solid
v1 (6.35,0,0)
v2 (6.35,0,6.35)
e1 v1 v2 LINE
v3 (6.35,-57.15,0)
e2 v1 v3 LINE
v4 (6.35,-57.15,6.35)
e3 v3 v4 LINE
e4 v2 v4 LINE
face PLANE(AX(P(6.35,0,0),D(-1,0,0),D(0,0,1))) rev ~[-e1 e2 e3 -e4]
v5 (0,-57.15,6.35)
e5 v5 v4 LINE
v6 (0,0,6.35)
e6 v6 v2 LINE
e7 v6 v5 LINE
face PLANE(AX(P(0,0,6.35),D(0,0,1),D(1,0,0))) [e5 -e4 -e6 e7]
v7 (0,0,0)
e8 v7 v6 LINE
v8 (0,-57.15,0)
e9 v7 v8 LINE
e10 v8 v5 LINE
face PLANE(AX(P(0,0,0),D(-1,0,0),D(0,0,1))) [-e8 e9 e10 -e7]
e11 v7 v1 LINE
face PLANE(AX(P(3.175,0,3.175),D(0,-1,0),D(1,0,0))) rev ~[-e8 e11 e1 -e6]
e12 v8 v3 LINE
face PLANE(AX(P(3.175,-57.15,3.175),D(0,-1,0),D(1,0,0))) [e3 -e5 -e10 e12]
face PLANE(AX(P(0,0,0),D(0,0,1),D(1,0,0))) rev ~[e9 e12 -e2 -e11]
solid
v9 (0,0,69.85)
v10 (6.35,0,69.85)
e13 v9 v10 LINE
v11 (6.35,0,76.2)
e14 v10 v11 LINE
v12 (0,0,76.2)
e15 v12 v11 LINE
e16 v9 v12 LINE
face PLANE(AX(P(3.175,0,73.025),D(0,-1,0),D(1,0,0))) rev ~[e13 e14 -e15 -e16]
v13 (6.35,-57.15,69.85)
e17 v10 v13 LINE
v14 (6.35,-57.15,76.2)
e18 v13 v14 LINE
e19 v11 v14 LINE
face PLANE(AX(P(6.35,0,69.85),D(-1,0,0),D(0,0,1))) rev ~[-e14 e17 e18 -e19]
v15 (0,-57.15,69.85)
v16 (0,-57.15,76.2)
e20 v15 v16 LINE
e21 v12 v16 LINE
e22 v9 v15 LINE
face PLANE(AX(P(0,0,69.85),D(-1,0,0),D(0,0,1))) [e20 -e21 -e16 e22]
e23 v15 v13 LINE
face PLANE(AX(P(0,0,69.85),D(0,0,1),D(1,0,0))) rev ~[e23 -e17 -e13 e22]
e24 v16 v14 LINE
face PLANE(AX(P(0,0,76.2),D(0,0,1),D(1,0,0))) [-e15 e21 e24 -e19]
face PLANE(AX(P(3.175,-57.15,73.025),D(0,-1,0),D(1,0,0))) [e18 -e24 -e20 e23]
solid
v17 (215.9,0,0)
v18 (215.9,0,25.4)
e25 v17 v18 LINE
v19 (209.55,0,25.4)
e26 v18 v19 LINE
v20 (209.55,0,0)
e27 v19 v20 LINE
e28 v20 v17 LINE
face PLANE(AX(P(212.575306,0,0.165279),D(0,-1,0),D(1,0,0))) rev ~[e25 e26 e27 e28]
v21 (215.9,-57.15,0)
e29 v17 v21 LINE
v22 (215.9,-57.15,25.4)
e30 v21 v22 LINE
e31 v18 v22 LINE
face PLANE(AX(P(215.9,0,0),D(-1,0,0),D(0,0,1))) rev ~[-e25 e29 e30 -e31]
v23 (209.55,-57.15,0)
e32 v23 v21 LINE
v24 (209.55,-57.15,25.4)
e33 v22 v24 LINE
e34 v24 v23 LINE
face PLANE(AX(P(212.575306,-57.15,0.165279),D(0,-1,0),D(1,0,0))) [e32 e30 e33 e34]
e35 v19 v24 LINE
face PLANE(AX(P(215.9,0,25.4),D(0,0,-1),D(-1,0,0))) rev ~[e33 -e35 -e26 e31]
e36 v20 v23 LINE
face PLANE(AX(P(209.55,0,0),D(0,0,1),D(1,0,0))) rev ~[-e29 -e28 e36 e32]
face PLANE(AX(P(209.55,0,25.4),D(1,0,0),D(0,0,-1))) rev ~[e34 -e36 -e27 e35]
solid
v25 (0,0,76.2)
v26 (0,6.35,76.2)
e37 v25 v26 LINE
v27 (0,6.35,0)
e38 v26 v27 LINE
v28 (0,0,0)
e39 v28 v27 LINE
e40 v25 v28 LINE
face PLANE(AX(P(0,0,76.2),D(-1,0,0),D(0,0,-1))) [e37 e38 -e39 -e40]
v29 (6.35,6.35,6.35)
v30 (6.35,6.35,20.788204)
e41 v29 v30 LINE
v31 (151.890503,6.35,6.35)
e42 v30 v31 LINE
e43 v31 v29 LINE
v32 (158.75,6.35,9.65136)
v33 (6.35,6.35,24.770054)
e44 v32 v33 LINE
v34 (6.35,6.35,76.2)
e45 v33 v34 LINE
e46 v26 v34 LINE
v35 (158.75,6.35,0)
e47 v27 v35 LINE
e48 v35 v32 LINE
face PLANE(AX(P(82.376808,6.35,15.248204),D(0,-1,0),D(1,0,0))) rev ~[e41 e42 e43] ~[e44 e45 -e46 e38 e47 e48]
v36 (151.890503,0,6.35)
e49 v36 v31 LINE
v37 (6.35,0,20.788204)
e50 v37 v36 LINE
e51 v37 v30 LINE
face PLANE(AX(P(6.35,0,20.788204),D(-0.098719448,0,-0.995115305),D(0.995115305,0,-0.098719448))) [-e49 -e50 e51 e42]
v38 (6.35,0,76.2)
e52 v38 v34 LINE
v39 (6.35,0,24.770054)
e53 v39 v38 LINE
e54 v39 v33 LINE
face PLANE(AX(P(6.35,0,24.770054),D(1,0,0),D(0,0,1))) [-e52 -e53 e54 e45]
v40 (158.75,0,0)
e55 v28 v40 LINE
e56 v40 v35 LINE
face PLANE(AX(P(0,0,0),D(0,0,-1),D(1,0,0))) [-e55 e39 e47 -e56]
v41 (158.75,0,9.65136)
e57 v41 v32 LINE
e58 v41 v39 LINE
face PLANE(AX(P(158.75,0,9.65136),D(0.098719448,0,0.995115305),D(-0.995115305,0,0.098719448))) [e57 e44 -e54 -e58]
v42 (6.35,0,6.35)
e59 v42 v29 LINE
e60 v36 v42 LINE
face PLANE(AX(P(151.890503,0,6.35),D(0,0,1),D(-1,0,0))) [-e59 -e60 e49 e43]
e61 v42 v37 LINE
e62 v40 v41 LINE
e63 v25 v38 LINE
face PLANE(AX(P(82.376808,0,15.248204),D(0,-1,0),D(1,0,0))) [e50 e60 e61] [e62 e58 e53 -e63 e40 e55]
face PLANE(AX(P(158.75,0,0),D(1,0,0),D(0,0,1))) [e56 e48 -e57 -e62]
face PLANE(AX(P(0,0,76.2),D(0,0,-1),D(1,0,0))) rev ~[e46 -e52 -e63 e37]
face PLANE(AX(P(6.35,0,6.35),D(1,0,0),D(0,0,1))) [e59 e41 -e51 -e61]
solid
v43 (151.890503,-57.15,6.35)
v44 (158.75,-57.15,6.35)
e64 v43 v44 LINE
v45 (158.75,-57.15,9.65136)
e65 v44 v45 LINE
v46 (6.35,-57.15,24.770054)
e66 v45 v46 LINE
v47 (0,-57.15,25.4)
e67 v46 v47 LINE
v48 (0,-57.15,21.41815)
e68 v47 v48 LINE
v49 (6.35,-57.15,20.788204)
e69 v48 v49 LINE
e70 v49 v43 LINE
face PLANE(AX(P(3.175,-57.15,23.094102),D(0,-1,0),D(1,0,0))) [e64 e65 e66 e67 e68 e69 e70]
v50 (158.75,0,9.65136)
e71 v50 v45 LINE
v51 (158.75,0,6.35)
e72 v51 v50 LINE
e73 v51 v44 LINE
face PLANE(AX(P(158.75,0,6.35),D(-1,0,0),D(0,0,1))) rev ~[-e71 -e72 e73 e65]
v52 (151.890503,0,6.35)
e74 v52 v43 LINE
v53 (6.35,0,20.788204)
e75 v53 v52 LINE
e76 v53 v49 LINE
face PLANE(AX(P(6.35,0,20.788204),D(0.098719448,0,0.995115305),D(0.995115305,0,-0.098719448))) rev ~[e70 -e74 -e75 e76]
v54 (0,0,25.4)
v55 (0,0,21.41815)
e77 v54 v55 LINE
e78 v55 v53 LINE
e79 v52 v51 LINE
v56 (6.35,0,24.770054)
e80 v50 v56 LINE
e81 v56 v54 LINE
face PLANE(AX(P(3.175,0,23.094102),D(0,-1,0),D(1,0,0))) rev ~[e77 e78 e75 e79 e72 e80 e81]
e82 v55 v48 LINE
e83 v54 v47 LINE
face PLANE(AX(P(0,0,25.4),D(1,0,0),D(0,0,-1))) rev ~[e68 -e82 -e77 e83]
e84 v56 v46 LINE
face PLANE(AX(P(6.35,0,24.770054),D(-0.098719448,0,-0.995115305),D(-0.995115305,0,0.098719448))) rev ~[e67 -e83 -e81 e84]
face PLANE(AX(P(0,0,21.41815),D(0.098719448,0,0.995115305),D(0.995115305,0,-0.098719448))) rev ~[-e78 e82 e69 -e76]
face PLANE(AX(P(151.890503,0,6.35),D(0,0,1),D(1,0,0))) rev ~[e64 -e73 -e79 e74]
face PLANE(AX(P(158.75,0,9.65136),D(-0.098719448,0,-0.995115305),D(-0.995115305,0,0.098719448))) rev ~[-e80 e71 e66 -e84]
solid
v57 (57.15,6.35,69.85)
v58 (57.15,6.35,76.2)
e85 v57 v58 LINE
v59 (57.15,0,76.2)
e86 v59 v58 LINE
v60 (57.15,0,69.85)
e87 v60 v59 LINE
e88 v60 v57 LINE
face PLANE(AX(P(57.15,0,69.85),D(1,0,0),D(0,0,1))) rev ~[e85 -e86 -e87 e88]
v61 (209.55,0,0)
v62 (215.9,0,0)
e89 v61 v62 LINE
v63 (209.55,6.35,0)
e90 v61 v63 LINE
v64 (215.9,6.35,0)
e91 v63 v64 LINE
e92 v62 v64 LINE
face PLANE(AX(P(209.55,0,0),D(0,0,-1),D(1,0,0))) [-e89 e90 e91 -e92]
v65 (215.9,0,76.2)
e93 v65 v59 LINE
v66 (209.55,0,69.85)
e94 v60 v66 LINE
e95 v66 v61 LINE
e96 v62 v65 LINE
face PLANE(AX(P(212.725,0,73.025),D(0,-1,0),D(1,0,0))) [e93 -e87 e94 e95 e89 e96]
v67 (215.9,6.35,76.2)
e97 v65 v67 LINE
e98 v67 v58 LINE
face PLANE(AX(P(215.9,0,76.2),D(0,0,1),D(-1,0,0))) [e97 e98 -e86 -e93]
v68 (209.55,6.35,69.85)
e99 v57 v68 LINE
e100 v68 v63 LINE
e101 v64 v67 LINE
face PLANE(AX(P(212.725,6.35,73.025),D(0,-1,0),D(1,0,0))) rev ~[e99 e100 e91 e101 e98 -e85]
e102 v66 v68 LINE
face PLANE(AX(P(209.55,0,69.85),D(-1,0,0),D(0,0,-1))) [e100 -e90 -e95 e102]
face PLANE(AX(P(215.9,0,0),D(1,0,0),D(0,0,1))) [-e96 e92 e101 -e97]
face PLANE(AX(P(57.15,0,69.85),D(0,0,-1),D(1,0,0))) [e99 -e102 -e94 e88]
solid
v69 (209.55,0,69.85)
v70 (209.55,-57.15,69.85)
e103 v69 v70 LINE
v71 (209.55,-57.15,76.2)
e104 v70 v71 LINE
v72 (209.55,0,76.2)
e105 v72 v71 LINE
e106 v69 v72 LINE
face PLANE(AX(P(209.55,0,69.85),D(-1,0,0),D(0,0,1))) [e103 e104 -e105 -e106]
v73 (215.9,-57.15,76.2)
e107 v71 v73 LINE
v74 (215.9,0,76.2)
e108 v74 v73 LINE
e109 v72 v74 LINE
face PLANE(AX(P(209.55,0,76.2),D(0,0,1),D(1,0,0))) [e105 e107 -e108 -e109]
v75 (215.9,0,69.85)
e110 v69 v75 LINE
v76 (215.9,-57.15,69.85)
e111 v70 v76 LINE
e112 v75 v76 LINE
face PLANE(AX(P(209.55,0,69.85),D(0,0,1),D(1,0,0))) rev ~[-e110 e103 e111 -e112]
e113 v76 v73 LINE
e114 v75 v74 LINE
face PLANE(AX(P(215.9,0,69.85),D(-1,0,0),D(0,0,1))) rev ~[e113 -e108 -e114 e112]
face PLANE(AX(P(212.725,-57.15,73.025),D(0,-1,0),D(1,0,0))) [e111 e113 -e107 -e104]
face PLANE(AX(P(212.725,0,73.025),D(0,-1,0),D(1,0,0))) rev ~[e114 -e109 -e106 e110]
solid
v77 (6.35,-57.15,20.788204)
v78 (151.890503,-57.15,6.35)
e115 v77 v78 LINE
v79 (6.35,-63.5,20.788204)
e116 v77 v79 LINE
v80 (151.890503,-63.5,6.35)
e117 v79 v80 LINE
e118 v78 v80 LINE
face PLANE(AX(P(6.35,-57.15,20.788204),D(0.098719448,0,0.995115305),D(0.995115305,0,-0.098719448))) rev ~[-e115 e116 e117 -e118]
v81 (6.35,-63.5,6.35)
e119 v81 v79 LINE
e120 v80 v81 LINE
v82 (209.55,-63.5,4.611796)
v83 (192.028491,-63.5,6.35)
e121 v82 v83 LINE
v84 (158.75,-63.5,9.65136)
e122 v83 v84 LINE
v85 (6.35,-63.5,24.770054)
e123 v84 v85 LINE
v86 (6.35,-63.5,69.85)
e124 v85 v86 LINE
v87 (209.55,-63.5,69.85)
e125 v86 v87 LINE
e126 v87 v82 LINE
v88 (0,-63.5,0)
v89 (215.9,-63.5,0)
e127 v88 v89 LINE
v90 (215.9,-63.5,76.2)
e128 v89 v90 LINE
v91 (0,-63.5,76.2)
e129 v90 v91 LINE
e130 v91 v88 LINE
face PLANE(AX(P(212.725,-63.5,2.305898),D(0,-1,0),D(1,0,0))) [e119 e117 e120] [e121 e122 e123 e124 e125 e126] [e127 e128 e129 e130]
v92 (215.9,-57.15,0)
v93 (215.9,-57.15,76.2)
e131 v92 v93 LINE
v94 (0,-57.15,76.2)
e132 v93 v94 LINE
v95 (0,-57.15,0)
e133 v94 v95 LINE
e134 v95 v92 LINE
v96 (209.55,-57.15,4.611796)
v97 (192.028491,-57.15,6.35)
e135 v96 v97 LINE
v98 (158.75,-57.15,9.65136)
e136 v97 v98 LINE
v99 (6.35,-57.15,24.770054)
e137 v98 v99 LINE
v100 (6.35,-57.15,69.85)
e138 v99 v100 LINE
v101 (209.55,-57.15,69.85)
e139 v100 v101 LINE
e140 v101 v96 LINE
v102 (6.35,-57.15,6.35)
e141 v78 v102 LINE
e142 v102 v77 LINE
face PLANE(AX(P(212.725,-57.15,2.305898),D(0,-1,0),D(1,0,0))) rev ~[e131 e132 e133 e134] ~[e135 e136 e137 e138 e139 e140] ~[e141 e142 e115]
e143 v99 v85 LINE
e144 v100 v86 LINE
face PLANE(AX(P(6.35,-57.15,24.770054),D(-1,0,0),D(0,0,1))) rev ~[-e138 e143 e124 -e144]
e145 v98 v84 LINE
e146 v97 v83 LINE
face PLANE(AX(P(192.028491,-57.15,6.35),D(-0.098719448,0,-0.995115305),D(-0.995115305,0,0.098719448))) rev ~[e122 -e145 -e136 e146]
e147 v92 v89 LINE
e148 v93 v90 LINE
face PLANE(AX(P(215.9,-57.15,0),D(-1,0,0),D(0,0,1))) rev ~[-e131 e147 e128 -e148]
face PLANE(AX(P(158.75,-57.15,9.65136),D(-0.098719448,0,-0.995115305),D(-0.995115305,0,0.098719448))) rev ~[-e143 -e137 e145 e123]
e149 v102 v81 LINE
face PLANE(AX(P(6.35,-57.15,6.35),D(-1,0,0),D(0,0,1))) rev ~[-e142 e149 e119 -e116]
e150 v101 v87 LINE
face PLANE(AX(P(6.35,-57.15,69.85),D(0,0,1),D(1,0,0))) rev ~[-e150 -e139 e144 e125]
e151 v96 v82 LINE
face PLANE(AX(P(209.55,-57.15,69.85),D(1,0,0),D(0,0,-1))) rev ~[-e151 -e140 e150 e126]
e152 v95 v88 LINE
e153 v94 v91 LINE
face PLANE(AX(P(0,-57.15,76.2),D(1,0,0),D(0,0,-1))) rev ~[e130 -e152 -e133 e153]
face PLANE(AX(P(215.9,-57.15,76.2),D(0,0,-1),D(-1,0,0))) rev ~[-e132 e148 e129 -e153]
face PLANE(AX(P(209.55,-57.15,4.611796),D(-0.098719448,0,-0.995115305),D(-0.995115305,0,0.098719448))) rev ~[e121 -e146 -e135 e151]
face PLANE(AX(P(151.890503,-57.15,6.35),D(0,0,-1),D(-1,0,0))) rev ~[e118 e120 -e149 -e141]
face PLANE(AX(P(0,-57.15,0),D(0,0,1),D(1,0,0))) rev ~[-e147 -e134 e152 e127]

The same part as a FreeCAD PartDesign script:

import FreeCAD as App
import Part
import Sketcher
Q = App.Units.Quantity


def add_polygon(sketch, points):
    """Adds a closed chain of lines whose ends are joined by coincident constraints."""
    first, n = sketch.GeometryCount, len(points)
    for a, b in zip(points, points[1:] + points[:1]):
        sketch.addGeometry(Part.LineSegment(App.Vector(*a, 0), App.Vector(*b, 0)), False)
    for i in range(n):
        sketch.addConstraint(Sketcher.Constraint("Coincident", first + i, 2, first + (i + 1) % n, 1))

doc = App.newDocument("Part")
body = doc.addObject("PartDesign::Body", "Body")

# Sketch on XZ plane
sketch1 = body.newObject("Sketcher::SketchObject", "Sketch")
sketch1.AttachmentSupport = (doc.getObject("XZ_Plane"), [""])
sketch1.MapMode = "FlatFace"
add_polygon(sketch1, [(159, 10), (6, 25), (6, 76), (0, 76), (0, 0), (159, 0)])  # lines 0-5
add_polygon(sketch1, [(6, 6), (6, 21), (152, 6)])  # lines 6-8
sketch1.addConstraint([
    Sketcher.Constraint("Vertical", 1),
    Sketcher.Constraint("Horizontal", 2),
    Sketcher.Constraint("Vertical", 3),
    Sketcher.Constraint("Horizontal", 4),
    Sketcher.Constraint("Vertical", 5),
    Sketcher.Constraint("Vertical", 6),
    Sketcher.Constraint("Horizontal", 8),
    Sketcher.Constraint("Coincident", 3, 2, -1, 1),
    Sketcher.Constraint("Parallel", 0, 7),
    Sketcher.Constraint("Vertical", 1, 2, 6, 2),
    Sketcher.Constraint("DistanceY", 3, 2, 3, 1, Q("3 in")),
    Sketcher.Constraint("DistanceX", 0, 2, 4, 2, Q("6 in")),
    Sketcher.Constraint("DistanceX", 2, 2, 2, 1, Q("0.25 in")),
    Sketcher.Constraint("DistanceY", -1, 1, 7, 2, Q("0.25 in")),
    Sketcher.Constraint("DistanceY", 5, 1, 5, 2, 9.65136),
    Sketcher.Constraint("Distance", 0, 153.148082),
    Sketcher.Constraint("DistanceX", 8, 2, 8, 1, 145.540503),
])
pad1 = body.newObject("PartDesign::Pad", "Pad")
pad1.Profile = sketch1
pad1.Length = Q("0.25 in")
pad1.Reversed = True
body2 = doc.addObject("PartDesign::Body", "Body001")

# Sketch on XZ plane
sketch2 = body2.newObject("Sketcher::SketchObject", "Sketch001")
sketch2.AttachmentSupport = (doc.getObject("XZ_Plane001"), [""])
sketch2.MapMode = "FlatFace"
add_polygon(sketch2, [(210, 70), (210, 0), (216, 0), (216, 76), (57, 76), (57, 70)])  # lines 0-5
sketch2.addConstraint([
    Sketcher.Constraint("Vertical", 0),
    Sketcher.Constraint("Horizontal", 1),
    Sketcher.Constraint("Vertical", 2),
    Sketcher.Constraint("Horizontal", 3),
    Sketcher.Constraint("Vertical", 4),
    Sketcher.Constraint("Horizontal", 5),
    Sketcher.Constraint("PointOnObject", 0, 2, -1),
    Sketcher.Constraint("Equal", 1, 4),
    Sketcher.Constraint("DistanceX", 5, 1, 5, 2, Q("6 in")),
    Sketcher.Constraint("DistanceY", 2, 1, 2, 2, Q("3 in")),
    Sketcher.Constraint("DistanceX", 1, 1, 1, 2, Q("0.25 in")),
    Sketcher.Constraint("DistanceX", -1, 1, 1, 2, Q("8.5 in")),
])
pad2 = body2.newObject("PartDesign::Pad", "Pad001")
pad2.Profile = sketch2
pad2.Length = Q("0.25 in")
pad2.Reversed = True
body3 = doc.addObject("PartDesign::Body", "Body002")

# Sketch on XZ plane
sketch3 = body3.newObject("Sketcher::SketchObject", "Sketch002")
sketch3.AttachmentSupport = (doc.getObject("XZ_Plane002"), [""])
sketch3.MapMode = "FlatFace"
sketch3.AttachmentOffset = App.Placement(App.Vector(0, 0, 2.25 * 25.4), App.Rotation())
add_polygon(sketch3, [(0, 76.2), (0, 0), (215.9, 0), (215.9, 76.2)])  # lines 0-3
add_polygon(sketch3, [(158.75, 9.65136), (6.35, 24.770054), (6.35, 69.85), (209.55, 69.85), (209.55, 4.611796), (192.028491, 6.35)])  # lines 4-9
add_polygon(sketch3, [(6.35, 6.35), (6.35, 20.788204), (151.890503, 6.35)])  # lines 10-12
sketch3.addConstraint([
    Sketcher.Constraint("Vertical", 0),
    Sketcher.Constraint("Horizontal", 1),
    Sketcher.Constraint("Vertical", 2),
    Sketcher.Constraint("Horizontal", 3),
    Sketcher.Constraint("Vertical", 5),
    Sketcher.Constraint("Horizontal", 6),
    Sketcher.Constraint("Vertical", 7),
    Sketcher.Constraint("Vertical", 10),
    Sketcher.Constraint("Horizontal", 12),
    Sketcher.Constraint("Coincident", 0, 2, -1, 1),
    Sketcher.Constraint("DistanceX", 6, 1, 6, 2, Q("8 in")),
    Sketcher.Constraint("DistanceY", 0, 2, 0, 1, Q("3 in")),
    Sketcher.Constraint("DistanceX", 1, 1, 1, 2, Q("8.5 in")),
    Sketcher.Constraint("DistanceX", 9, 2, 7, 2, Q("2 in")),
    Sketcher.Constraint("DistanceX", 10, 2, 9, 2, Q("6 in")),
    Sketcher.Constraint("DistanceY", 8, 2, 6, 2, Q("2.5 in")),
    Sketcher.Constraint("DistanceY", 11, 2, 6, 2, Q("2.5 in")),
    Sketcher.Constraint("DistanceX", -1, 1, 4, 2, Q("0.25 in")),
    Sketcher.Constraint("DistanceY", -1, 1, 5, 2, Q("2.75 in")),
    Sketcher.Constraint("Distance", 4, 153.148082),
    Sketcher.Constraint("DistanceX", 12, 2, 12, 1, 145.540503),
    Sketcher.Constraint("DistanceY", 5, 1, 5, 2, 45.079946),
    Sketcher.Constraint("DistanceY", 7, 2, 7, 1, 65.238204),
    Sketcher.Constraint("DistanceY", 10, 1, 10, 2, 14.438204),
    Sketcher.Constraint("DistanceX", -1, 1, 8, 2, 192.028491),
])
pad3 = body3.newObject("PartDesign::Pad", "Pad002")
pad3.Profile = sketch3
pad3.Length = Q("0.25 in")
body4 = doc.addObject("PartDesign::Body", "Body003")

# Sketch on XZ plane
sketch4 = body4.newObject("Sketcher::SketchObject", "Sketch003")
sketch4.AttachmentSupport = (doc.getObject("XZ_Plane003"), [""])
sketch4.MapMode = "FlatFace"
add_polygon(sketch4, [(210, 76), (210, 70), (216, 70), (216, 76)])  # lines 0-3
sketch4.addConstraint([
    Sketcher.Constraint("Vertical", 0),
    Sketcher.Constraint("Horizontal", 1),
    Sketcher.Constraint("Vertical", 2),
    Sketcher.Constraint("Horizontal", 3),
    Sketcher.Constraint("Equal", 3, 0),
    Sketcher.Constraint("DistanceY", -1, 1, 2, 2, Q("3 in")),
    Sketcher.Constraint("DistanceX", 1, 1, 1, 2, Q("0.25 in")),
    Sketcher.Constraint("DistanceX", -1, 1, 1, 2, Q("8.5 in")),
])
pad4 = body4.newObject("PartDesign::Pad", "Pad003")
pad4.Profile = sketch4
pad4.Length = Q("2.25 in")
body5 = doc.addObject("PartDesign::Body", "Body004")

# Sketch on XZ plane
sketch5 = body5.newObject("Sketcher::SketchObject", "Sketch004")
sketch5.AttachmentSupport = (doc.getObject("XZ_Plane004"), [""])
sketch5.MapMode = "FlatFace"
add_polygon(sketch5, [(210, 0), (216, 0), (216, 25), (210, 25)])  # lines 0-3
sketch5.addConstraint([
    Sketcher.Constraint("Horizontal", 0),
    Sketcher.Constraint("Vertical", 1),
    Sketcher.Constraint("Horizontal", 2),
    Sketcher.Constraint("Vertical", 3),
    Sketcher.Constraint("PointOnObject", 0, 2, -1),
    Sketcher.Constraint("DistanceY", 1, 1, 1, 2, Q("1 in")),
    Sketcher.Constraint("DistanceX", 0, 1, 0, 2, Q("0.25 in")),
    Sketcher.Constraint("DistanceX", -1, 1, 0, 2, Q("8.5 in")),
])
pad5 = body5.newObject("PartDesign::Pad", "Pad004")
pad5.Profile = sketch5
pad5.Length = Q("2.25 in")
body6 = doc.addObject("PartDesign::Body", "Body005")

# Sketch on XZ plane
sketch6 = body6.newObject("Sketcher::SketchObject", "Sketch005")
sketch6.AttachmentSupport = (doc.getObject("XZ_Plane005"), [""])
sketch6.MapMode = "FlatFace"
add_polygon(sketch6, [(0, 76), (0, 70), (6, 70), (6, 76)])  # lines 0-3
sketch6.addConstraint([
    Sketcher.Constraint("Vertical", 0),
    Sketcher.Constraint("Horizontal", 1),
    Sketcher.Constraint("Vertical", 2),
    Sketcher.Constraint("Horizontal", 3),
    Sketcher.Constraint("PointOnObject", 0, 2, -2),
    Sketcher.Constraint("Equal", 3, 0),
    Sketcher.Constraint("DistanceY", -1, 1, 2, 2, Q("3 in")),
    Sketcher.Constraint("DistanceX", 1, 1, 1, 2, Q("0.25 in")),
])
pad6 = body6.newObject("PartDesign::Pad", "Pad005")
pad6.Profile = sketch6
pad6.Length = Q("2.25 in")
body7 = doc.addObject("PartDesign::Body", "Body006")

# Sketch on XZ plane
sketch7 = body7.newObject("Sketcher::SketchObject", "Sketch006")
sketch7.AttachmentSupport = (doc.getObject("XZ_Plane006"), [""])
sketch7.MapMode = "FlatFace"
add_polygon(sketch7, [(0, 6), (0, 0), (6, 0), (6, 6)])  # lines 0-3
sketch7.addConstraint([
    Sketcher.Constraint("Vertical", 0),
    Sketcher.Constraint("Horizontal", 1),
    Sketcher.Constraint("Vertical", 2),
    Sketcher.Constraint("Horizontal", 3),
    Sketcher.Constraint("Coincident", 0, 2, -1, 1),
    Sketcher.Constraint("Equal", 3, 0),
    Sketcher.Constraint("DistanceX", 1, 1, 1, 2, Q("0.25 in")),
])
pad7 = body7.newObject("PartDesign::Pad", "Pad006")
pad7.Profile = sketch7
pad7.Length = Q("2.25 in")
body8 = doc.addObject("PartDesign::Body", "Body007")

# Sketch on XZ plane
sketch8 = body8.newObject("Sketcher::SketchObject", "Sketch007")
sketch8.AttachmentSupport = (doc.getObject("XZ_Plane007"), [""])
sketch8.MapMode = "FlatFace"
add_polygon(sketch8, [(6.3, 24.8), (0, 25.4), (0, 21.4), (6.3, 20.8), (151.9, 6.3), (158.8, 6.3), (158.8, 9.7)])  # lines 0-6
sketch8.addConstraint([
    Sketcher.Constraint("Vertical", 1),
    Sketcher.Constraint("Horizontal", 4),
    Sketcher.Constraint("Vertical", 5),
    Sketcher.Constraint("PointOnObject", 0, 2, -2),
    Sketcher.Constraint("Parallel", 0, 2),
    Sketcher.Constraint("Parallel", 2, 3),
    Sketcher.Constraint("Parallel", 3, 6),
    Sketcher.Constraint("Vertical", 2, 2, 6, 2),
    Sketcher.Constraint("DistanceY", -1, 1, 0, 2, Q("1 in")),
    Sketcher.Constraint("DistanceX", 2, 2, 4, 2, Q("6 in")),
    Sketcher.Constraint("DistanceX", -1, 1, 2, 2, Q("0.25 in")),
    Sketcher.Constraint("DistanceY", -1, 1, 3, 2, Q("0.25 in")),
    Sketcher.Constraint("DistanceY", 1, 2, 1, 1, 3.98185),
    Sketcher.Constraint("DistanceY", 5, 1, 5, 2, 3.30136),
])
pad8 = body8.newObject("PartDesign::Pad", "Pad007")
pad8.Profile = sketch8
pad8.Length = Q("2.25 in")

doc.recompute()
